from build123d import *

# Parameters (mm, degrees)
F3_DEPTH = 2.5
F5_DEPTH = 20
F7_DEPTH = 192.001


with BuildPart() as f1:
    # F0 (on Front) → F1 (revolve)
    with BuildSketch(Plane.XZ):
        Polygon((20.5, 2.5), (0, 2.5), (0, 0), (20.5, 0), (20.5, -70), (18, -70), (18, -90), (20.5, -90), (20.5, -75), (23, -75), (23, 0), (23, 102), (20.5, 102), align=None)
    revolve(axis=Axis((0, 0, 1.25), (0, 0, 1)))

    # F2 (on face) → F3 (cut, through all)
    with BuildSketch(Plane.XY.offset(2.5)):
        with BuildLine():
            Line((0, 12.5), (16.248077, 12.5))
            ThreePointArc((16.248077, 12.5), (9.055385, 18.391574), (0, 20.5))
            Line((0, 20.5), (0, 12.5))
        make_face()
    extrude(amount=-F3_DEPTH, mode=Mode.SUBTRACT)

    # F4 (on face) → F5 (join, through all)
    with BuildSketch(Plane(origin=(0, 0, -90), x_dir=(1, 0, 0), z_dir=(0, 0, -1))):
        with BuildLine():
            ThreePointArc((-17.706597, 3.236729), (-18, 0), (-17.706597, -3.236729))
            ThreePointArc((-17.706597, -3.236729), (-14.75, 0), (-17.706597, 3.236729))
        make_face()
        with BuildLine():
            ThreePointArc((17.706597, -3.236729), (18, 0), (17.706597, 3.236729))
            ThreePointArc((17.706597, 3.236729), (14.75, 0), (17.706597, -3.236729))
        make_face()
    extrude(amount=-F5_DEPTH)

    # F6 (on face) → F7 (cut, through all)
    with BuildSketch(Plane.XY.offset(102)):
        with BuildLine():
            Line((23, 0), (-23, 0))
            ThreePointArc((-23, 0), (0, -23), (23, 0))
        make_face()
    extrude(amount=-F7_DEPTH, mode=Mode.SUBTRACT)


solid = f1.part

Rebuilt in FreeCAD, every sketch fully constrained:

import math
import FreeCAD as App
import Part
import Sketcher

V = App.Vector
Q = App.Units.Quantity

doc = App.newDocument("Part")
body = doc.addObject("PartDesign::Body", "Body")

# Sketch on XZ plane
sketch1 = doc.addObject("Sketcher::SketchObject", "Sketch")
body.addObject(sketch1)
sketch1.AttachmentSupport = (doc.XZ_Plane, [""])
sketch1.MapMode = "FlatFace"
sketch1.addGeometry([
    Part.LineSegment(V(20.5, 2.5, 0), V(0, 2.5, 0)),  # 0
    Part.LineSegment(V(0, 2.5, 0), V(0, 0, 0)),  # 1
    Part.LineSegment(V(0, 0, 0), V(20.5, 0, 0)),  # 2
    Part.LineSegment(V(20.5, 0, 0), V(20.5, -70, 0)),  # 3
    Part.LineSegment(V(20.5, -70, 0), V(18, -70, 0)),  # 4
    Part.LineSegment(V(18, -70, 0), V(18, -90, 0)),  # 5
    Part.LineSegment(V(18, -90, 0), V(20.5, -90, 0)),  # 6
    Part.LineSegment(V(20.5, -90, 0), V(20.5, -75, 0)),  # 7
    Part.LineSegment(V(20.5, -75, 0), V(23, -75, 0)),  # 8
    Part.LineSegment(V(23, -75, 0), V(23, 102, 0)),  # 9
    Part.LineSegment(V(23, 102, 0), V(20.5, 102, 0)),  # 10
    Part.LineSegment(V(20.5, 102, 0), V(20.5, 2.5, 0)),  # 11
], False)
sketch1.addConstraint([
    Sketcher.Constraint("Coincident", 0, 2, 1, 1),
    Sketcher.Constraint("Coincident", 1, 2, 2, 1),
    Sketcher.Constraint("Coincident", 2, 2, 3, 1),
    Sketcher.Constraint("Coincident", 3, 2, 4, 1),
    Sketcher.Constraint("Coincident", 4, 2, 5, 1),
    Sketcher.Constraint("Coincident", 5, 2, 6, 1),
    Sketcher.Constraint("Coincident", 6, 2, 7, 1),
    Sketcher.Constraint("Coincident", 7, 2, 8, 1),
    Sketcher.Constraint("Coincident", 8, 2, 9, 1),
    Sketcher.Constraint("Coincident", 9, 2, 10, 1),
    Sketcher.Constraint("Coincident", 10, 2, 11, 1),
    Sketcher.Constraint("Coincident", 11, 2, 0, 1),
    Sketcher.Constraint("Horizontal", 0),
    Sketcher.Constraint("Vertical", 1),
    Sketcher.Constraint("Horizontal", 2),
    Sketcher.Constraint("Vertical", 3),
    Sketcher.Constraint("Horizontal", 4),
    Sketcher.Constraint("Vertical", 5),
    Sketcher.Constraint("Horizontal", 6),
    Sketcher.Constraint("Vertical", 7),
    Sketcher.Constraint("Horizontal", 8),
    Sketcher.Constraint("Vertical", 9),
    Sketcher.Constraint("Horizontal", 10),
    Sketcher.Constraint("Vertical", 11),
    Sketcher.Constraint("Coincident", 1, 2, -1, 1),
    Sketcher.Constraint("Vertical", 3, 2, 6, 2),
    Sketcher.Constraint("Vertical", 7, 2, 10, 2),
    Sketcher.Constraint("Equal", 6, 8),
    Sketcher.Constraint("Equal", 10, 1),
    Sketcher.Constraint("DistanceY", 3, 2, 3, 1, Q("70 mm")),
    Sketcher.Constraint("DistanceY", 5, 2, 5, 1, Q("20 mm")),
    Sketcher.Constraint("DistanceY", 7, 1, 7, 2, Q("15 mm")),
    Sketcher.Constraint("DistanceY", 9, 1, 9, 2, Q("177 mm")),
    Sketcher.Constraint("DistanceX", 0, 2, 0, 1, Q("20.5 mm")),
    Sketcher.Constraint("DistanceX", 4, 2, 4, 1, Q("2.5 mm")),
])
revolution = doc.addObject("PartDesign::Revolution", "Revolution")
body.addObject(revolution)
revolution.Profile = sketch1
revolution.ReferenceAxis = (sketch1, ["V_Axis"])
revolution.Angle = 360

# Sketch on XY plane
sketch2 = doc.addObject("Sketcher::SketchObject", "Sketch001")
body.addObject(sketch2)
sketch2.AttachmentSupport = (doc.XY_Plane, [""])
sketch2.MapMode = "FlatFace"
sketch2.AttachmentOffset = App.Placement(V(0, 0, 2.5), App.Rotation())
sketch2.addGeometry([
    Part.LineSegment(V(0, 12, 0), V(16, 12, 0)),
    Part.ArcOfCircle(Part.Circle(V(0, 0, 0), V(0, 0, 1), 21), math.radians(38), math.radians(90)),
    Part.LineSegment(V(0, 20, 0), V(0, 12, 0)),
], False)
sketch2.addConstraint([
    Sketcher.Constraint("Coincident", 0, 2, 1, 1),
    Sketcher.Constraint("Coincident", 1, 2, 2, 1),
    Sketcher.Constraint("Coincident", 2, 2, 0, 1),
    Sketcher.Constraint("Horizontal", 0),
    Sketcher.Constraint("Vertical", 2),
    Sketcher.Constraint("Coincident", 1, 3, -1, 1),
    Sketcher.Constraint("PointOnObject", 1, 2, -2),
    Sketcher.Constraint("DistanceY", 2, 2, 2, 1, Q("8 mm")),
    Sketcher.Constraint("DistanceY", -1, 1, 0, 2, Q("12.5 mm")),
])
pocket1 = doc.addObject("PartDesign::Pocket", "Pocket")
body.addObject(pocket1)
pocket1.Profile = sketch2
pocket1.Length = 2.5

# Sketch on XY plane
sketch3 = doc.addObject("Sketcher::SketchObject", "Sketch002")
body.addObject(sketch3)
sketch3.AttachmentSupport = (doc.XY_Plane, [""])
sketch3.MapMode = "FlatFace"
sketch3.AttachmentOffset = App.Placement(V(0, 0, -90), App.Rotation())
sketch3.addGeometry([
    Part.ArcOfCircle(Part.Circle(V(-0.000014, 0, 0), V(0, 0, 1), 17.999986), math.radians(169.640817), math.radians(190.359183)),
    Part.ArcOfCircle(Part.Circle(V(-18, 0, 0), V(0, 0, 1), 3.25), math.radians(-84.820409), math.radians(84.820409)),
    Part.ArcOfCircle(Part.Circle(V(0.000014, 0, 0), V(0, 0, 1), 17.999986), math.radians(-10.359183), math.radians(10.359183)),
    Part.ArcOfCircle(Part.Circle(V(18, 0, 0), V(0, 0, 1), 3.25), math.radians(95.179591), math.radians(264.820409)),
], False)
sketch3.addConstraint([
    Sketcher.Constraint("Coincident", 0, 1, 1, 2),
    Sketcher.Constraint("Coincident", 1, 1, 0, 2),
    Sketcher.Constraint("Coincident", 2, 1, 3, 2),
    Sketcher.Constraint("Coincident", 3, 1, 2, 2),
    Sketcher.Constraint("Equal", 0, 2),
    Sketcher.Constraint("Equal", 1, 3),
    Sketcher.Constraint("Symmetric", 0, 3, 2, 3, -1, 1),
    Sketcher.Constraint("Symmetric", 1, 3, 3, 3, -1, 1),
    Sketcher.Constraint("Symmetric", 1, 1, 2, 1, -2),
    Sketcher.Constraint("Radius", 1, Q("3.25 mm")),
    Sketcher.Constraint("DistanceX", 1, 3, -1, 1, Q("18 mm")),
    Sketcher.Constraint("Radius", 0, Q("17.999986 mm")),
    Sketcher.Constraint("DistanceY", -1, 1, 0, 1, Q("3.236729 mm")),
])
pad1 = doc.addObject("PartDesign::Pad", "Pad")
body.addObject(pad1)
pad1.Profile = sketch3
pad1.Length = 20

# Sketch on XY plane
sketch4 = doc.addObject("Sketcher::SketchObject", "Sketch003")
body.addObject(sketch4)
sketch4.AttachmentSupport = (doc.XY_Plane, [""])
sketch4.MapMode = "FlatFace"
sketch4.AttachmentOffset = App.Placement(V(0, 0, 102), App.Rotation())
sketch4.addGeometry([
    Part.LineSegment(V(23, 0, 0), V(-23, 0, 0)),
    Part.ArcOfCircle(Part.Circle(V(0, 0, 0), V(0, 0, 1), 23), math.radians(180), math.radians(360)),
], False)
sketch4.addConstraint([
    Sketcher.Constraint("Coincident", 0, 1, 1, 2),
    Sketcher.Constraint("Coincident", 1, 1, 0, 2),
    Sketcher.Constraint("Horizontal", 0),
    Sketcher.Constraint("Coincident", 1, 3, -1, 1),
    Sketcher.Constraint("PointOnObject", 0, 1, -1),
    Sketcher.Constraint("Radius", 1, Q("23 mm")),
])
pocket2 = doc.addObject("PartDesign::Pocket", "Pocket001")
body.addObject(pocket2)
pocket2.Profile = sketch4
pocket2.Type = "ThroughAll"

doc.recompute()
